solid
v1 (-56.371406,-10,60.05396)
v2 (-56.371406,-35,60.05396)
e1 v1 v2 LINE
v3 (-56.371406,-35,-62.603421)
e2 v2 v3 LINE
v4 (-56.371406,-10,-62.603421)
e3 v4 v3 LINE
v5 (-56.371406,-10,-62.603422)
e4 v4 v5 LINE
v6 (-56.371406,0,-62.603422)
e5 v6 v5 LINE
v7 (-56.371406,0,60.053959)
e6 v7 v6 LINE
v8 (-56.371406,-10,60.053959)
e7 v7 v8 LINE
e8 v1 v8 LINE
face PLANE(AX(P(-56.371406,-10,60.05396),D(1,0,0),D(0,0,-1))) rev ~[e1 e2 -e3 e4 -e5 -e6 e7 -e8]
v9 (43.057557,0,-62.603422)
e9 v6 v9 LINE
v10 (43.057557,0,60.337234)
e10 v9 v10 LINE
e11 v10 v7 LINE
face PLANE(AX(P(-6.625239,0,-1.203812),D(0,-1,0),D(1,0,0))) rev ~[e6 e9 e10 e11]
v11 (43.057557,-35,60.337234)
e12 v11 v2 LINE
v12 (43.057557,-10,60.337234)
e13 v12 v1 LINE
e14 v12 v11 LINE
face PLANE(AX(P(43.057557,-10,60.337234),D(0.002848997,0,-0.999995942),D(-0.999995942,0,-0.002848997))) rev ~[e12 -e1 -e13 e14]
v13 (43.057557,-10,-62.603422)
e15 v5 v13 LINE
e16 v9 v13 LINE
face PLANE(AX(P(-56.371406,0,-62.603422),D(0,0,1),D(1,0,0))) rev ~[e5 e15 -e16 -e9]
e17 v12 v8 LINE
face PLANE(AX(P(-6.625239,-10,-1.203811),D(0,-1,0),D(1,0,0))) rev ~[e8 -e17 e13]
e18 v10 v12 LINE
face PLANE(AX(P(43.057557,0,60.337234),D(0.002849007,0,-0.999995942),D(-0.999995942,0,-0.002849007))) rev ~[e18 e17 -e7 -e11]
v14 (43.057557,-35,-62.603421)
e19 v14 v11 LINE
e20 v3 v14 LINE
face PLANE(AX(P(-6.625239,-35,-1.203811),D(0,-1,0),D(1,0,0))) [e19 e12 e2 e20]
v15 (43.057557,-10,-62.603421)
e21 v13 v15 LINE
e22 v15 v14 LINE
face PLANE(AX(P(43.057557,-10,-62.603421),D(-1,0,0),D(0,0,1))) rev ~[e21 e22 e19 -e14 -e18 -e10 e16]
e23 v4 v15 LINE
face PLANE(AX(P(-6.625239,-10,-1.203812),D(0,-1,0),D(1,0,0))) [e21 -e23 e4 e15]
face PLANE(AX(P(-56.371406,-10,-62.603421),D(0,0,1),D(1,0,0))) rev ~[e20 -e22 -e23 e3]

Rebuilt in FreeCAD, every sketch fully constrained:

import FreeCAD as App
import Part
import Sketcher

V = App.Vector
Q = App.Units.Quantity


def add_polygon(sketch, points):
    """Adds a closed chain of lines whose ends are joined by coincident constraints."""
    first, n = sketch.GeometryCount, len(points)
    for a, b in zip(points, points[1:] + points[:1]):
        sketch.addGeometry(Part.LineSegment(App.Vector(*a, 0), App.Vector(*b, 0)), False)
    for i in range(n):
        sketch.addConstraint(Sketcher.Constraint("Coincident", first + i, 2, first + (i + 1) % n, 1))

doc = App.newDocument("Part")
body = doc.addObject("PartDesign::Body", "Body")

# Sketch on XZ plane
sketch1 = doc.addObject("Sketcher::SketchObject", "Sketch")
body.addObject(sketch1)
sketch1.AttachmentSupport = (doc.XZ_Plane, [""])
sketch1.MapMode = "FlatFace"
add_polygon(sketch1, [(43, 60), (-56, 60), (-56, -63), (43, -63)])  # lines 0-3
sketch1.addConstraint([
    Sketcher.Constraint("Vertical", 1),
    Sketcher.Constraint("Horizontal", 2),
    Sketcher.Constraint("Vertical", 3),
    Sketcher.Constraint("DistanceY", 1, 2, 1, 1, Q("122.657381 mm")),
    Sketcher.Constraint("DistanceX", 2, 1, 2, 2, Q("99.428963 mm")),
    Sketcher.Constraint("DistanceY", 3, 1, 3, 2, Q("122.940656 mm")),
    Sketcher.Constraint("DistanceY", -1, 1, 0, 2, Q("60.053959 mm")),
    Sketcher.Constraint("DistanceX", 0, 2, -1, 1, Q("56.371406 mm")),
])
pad1 = doc.addObject("PartDesign::Pad", "Pad")
body.addObject(pad1)
pad1.Profile = sketch1
pad1.Length = 10

# Sketch on XZ plane
sketch2 = doc.addObject("Sketcher::SketchObject", "Sketch001")
body.addObject(sketch2)
sketch2.AttachmentSupport = (doc.XZ_Plane, [""])
sketch2.MapMode = "FlatFace"
sketch2.AttachmentOffset = App.Placement(V(0, 0, 10), App.Rotation())
add_polygon(sketch2, [(43, 60), (-56, 60), (-56, -63), (43, -63)])  # lines 0-3
sketch2.addConstraint([
    Sketcher.Constraint("Vertical", 1),
    Sketcher.Constraint("Horizontal", 2),
    Sketcher.Constraint("Vertical", 3),
    Sketcher.Constraint("DistanceY", 1, 2, 1, 1, Q("122.657381 mm")),
    Sketcher.Constraint("DistanceX", 2, 1, 2, 2, Q("99.428963 mm")),
    Sketcher.Constraint("DistanceY", 3, 1, 3, 2, Q("122.940655 mm")),
    Sketcher.Constraint("DistanceY", -1, 1, 0, 2, Q("60.05396 mm")),
    Sketcher.Constraint("DistanceX", 0, 2, -1, 1, Q("56.371406 mm")),
])
pad2 = doc.addObject("PartDesign::Pad", "Pad001")
body.addObject(pad2)
pad2.Profile = sketch2
pad2.Length = 25

doc.recompute()
